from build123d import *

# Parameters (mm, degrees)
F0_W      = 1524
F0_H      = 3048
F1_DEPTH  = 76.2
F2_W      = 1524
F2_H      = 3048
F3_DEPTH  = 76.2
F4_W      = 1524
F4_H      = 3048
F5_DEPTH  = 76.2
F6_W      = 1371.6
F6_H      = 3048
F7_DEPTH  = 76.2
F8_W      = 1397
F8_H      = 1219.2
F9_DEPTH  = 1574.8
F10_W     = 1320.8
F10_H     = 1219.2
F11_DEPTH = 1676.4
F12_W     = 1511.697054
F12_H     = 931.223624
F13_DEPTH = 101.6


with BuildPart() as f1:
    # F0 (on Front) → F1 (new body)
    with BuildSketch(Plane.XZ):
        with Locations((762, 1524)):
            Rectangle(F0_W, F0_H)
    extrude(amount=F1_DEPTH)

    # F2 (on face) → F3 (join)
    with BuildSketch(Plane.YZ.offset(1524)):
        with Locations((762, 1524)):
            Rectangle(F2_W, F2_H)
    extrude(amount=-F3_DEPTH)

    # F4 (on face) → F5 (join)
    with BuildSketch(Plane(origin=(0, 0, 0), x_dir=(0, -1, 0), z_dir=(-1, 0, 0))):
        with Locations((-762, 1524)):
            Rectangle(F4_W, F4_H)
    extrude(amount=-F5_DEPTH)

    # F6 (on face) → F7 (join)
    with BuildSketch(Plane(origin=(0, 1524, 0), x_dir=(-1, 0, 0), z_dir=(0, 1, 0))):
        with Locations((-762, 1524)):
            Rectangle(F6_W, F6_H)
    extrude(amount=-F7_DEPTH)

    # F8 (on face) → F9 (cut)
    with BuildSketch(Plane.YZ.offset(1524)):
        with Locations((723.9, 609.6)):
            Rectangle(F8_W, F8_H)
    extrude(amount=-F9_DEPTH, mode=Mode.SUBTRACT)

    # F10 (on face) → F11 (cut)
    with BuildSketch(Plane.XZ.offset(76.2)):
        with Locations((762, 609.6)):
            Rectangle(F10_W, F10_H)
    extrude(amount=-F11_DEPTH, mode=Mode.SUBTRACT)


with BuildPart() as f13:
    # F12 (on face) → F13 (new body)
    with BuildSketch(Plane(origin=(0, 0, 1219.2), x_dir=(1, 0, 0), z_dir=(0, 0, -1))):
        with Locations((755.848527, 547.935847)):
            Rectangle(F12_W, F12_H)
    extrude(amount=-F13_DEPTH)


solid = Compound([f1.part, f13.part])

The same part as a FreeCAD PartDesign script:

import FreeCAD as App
import Part
import Sketcher
Q = App.Units.Quantity


def add_polygon(sketch, points):
    """Adds a closed chain of lines whose ends are joined by coincident constraints."""
    first, n = sketch.GeometryCount, len(points)
    for a, b in zip(points, points[1:] + points[:1]):
        sketch.addGeometry(Part.LineSegment(App.Vector(*a, 0), App.Vector(*b, 0)), False)
    for i in range(n):
        sketch.addConstraint(Sketcher.Constraint("Coincident", first + i, 2, first + (i + 1) % n, 1))

doc = App.newDocument("Part")
body = doc.addObject("PartDesign::Body", "Body")

# Sketch on XZ plane
sketch1 = doc.addObject("Sketcher::SketchObject", "Sketch")
body.addObject(sketch1)
sketch1.AttachmentSupport = (doc.XZ_Plane, [""])
sketch1.MapMode = "FlatFace"
add_polygon(sketch1, [(0, 3048), (0, 0), (1524, 0), (1524, 3048)])  # lines 0-3
sketch1.addConstraint([
    Sketcher.Constraint("Vertical", 0),
    Sketcher.Constraint("Horizontal", 1),
    Sketcher.Constraint("Vertical", 2),
    Sketcher.Constraint("Horizontal", 3),
    Sketcher.Constraint("Coincident", 0, 2, -1, 1),
    Sketcher.Constraint("DistanceX", 1, 1, 1, 2, Q("60 in")),
    Sketcher.Constraint("DistanceY", 0, 2, 0, 1, Q("120 in")),
])
pad1 = doc.addObject("PartDesign::Pad", "Pad")
body.addObject(pad1)
pad1.Profile = sketch1
pad1.Length = Q("3 in")

# Sketch on YZ plane
sketch2 = doc.addObject("Sketcher::SketchObject", "Sketch001")
body.addObject(sketch2)
sketch2.AttachmentSupport = (doc.YZ_Plane, [""])
sketch2.MapMode = "FlatFace"
sketch2.AttachmentOffset = App.Placement(App.Vector(0, 0, 60 * 25.4), App.Rotation())
add_polygon(sketch2, [(0, 3048), (0, 0), (1524, 0), (1524, 3048)])  # lines 0-3
sketch2.addConstraint([
    Sketcher.Constraint("Vertical", 0),
    Sketcher.Constraint("Horizontal", 1),
    Sketcher.Constraint("Vertical", 2),
    Sketcher.Constraint("Horizontal", 3),
    Sketcher.Constraint("Coincident", 0, 2, -1, 1),
    Sketcher.Constraint("DistanceX", 1, 1, 1, 2, Q("60 in")),
    Sketcher.Constraint("DistanceY", 0, 2, 0, 1, Q("120 in")),
])
pad2 = doc.addObject("PartDesign::Pad", "Pad001")
body.addObject(pad2)
pad2.Profile = sketch2
pad2.Length = Q("3 in")
pad2.Reversed = True

# Sketch on YZ plane
sketch3 = doc.addObject("Sketcher::SketchObject", "Sketch002")
body.addObject(sketch3)
sketch3.AttachmentSupport = (doc.YZ_Plane, [""])
sketch3.MapMode = "FlatFace"
add_polygon(sketch3, [(1524, 3048), (1524, 0), (0, 0), (0, 3048)])  # lines 0-3
sketch3.addConstraint([
    Sketcher.Constraint("Vertical", 0),
    Sketcher.Constraint("Horizontal", 1),
    Sketcher.Constraint("Vertical", 2),
    Sketcher.Constraint("Horizontal", 3),
    Sketcher.Constraint("Coincident", 1, 2, -1, 1),
    Sketcher.Constraint("DistanceX", 1, 2, 1, 1, Q("60 in")),
    Sketcher.Constraint("DistanceY", 0, 2, 0, 1, Q("120 in")),
])
pad3 = doc.addObject("PartDesign::Pad", "Pad002")
body.addObject(pad3)
pad3.Profile = sketch3
pad3.Length = Q("3 in")

# Sketch on XZ plane
sketch4 = doc.addObject("Sketcher::SketchObject", "Sketch003")
body.addObject(sketch4)
sketch4.AttachmentSupport = (doc.XZ_Plane, [""])
sketch4.MapMode = "FlatFace"
sketch4.AttachmentOffset = App.Placement(App.Vector(0, 0, -60 * 25.4), App.Rotation())
add_polygon(sketch4, [(1447.8, 3048), (1447.8, 0), (76.2, 0), (76.2, 3048)])  # lines 0-3
sketch4.addConstraint([
    Sketcher.Constraint("Vertical", 0),
    Sketcher.Constraint("Horizontal", 1),
    Sketcher.Constraint("Vertical", 2),
    Sketcher.Constraint("Horizontal", 3),
    Sketcher.Constraint("PointOnObject", 0, 2, -1),
    Sketcher.Constraint("DistanceX", 1, 2, 1, 1, Q("54 in")),
    Sketcher.Constraint("DistanceY", 0, 2, 0, 1, Q("120 in")),
    Sketcher.Constraint("DistanceX", -1, 1, 0, 2, Q("57 in")),
])
pad4 = doc.addObject("PartDesign::Pad", "Pad003")
body.addObject(pad4)
pad4.Profile = sketch4
pad4.Length = Q("3 in")

# Sketch on YZ plane
sketch5 = doc.addObject("Sketcher::SketchObject", "Sketch004")
body.addObject(sketch5)
sketch5.AttachmentSupport = (doc.YZ_Plane, [""])
sketch5.MapMode = "FlatFace"
sketch5.AttachmentOffset = App.Placement(App.Vector(0, 0, 60 * 25.4), App.Rotation())
add_polygon(sketch5, [(25.4, 1219.2), (25.4, 0), (1422.4, 0), (1422.4, 1219.2)])  # lines 0-3
sketch5.addConstraint([
    Sketcher.Constraint("Vertical", 0),
    Sketcher.Constraint("Horizontal", 1),
    Sketcher.Constraint("Vertical", 2),
    Sketcher.Constraint("Horizontal", 3),
    Sketcher.Constraint("PointOnObject", 0, 2, -1),
    Sketcher.Constraint("DistanceX", 1, 1, 1, 2, Q("55 in")),
    Sketcher.Constraint("DistanceY", 0, 2, 0, 1, Q("48 in")),
    Sketcher.Constraint("DistanceX", -1, 1, 0, 2, Q("1 in")),
])
pocket1 = doc.addObject("PartDesign::Pocket", "Pocket")
body.addObject(pocket1)
pocket1.Profile = sketch5
pocket1.Length = Q("62 in")

# Sketch on XZ plane
sketch6 = doc.addObject("Sketcher::SketchObject", "Sketch005")
body.addObject(sketch6)
sketch6.AttachmentSupport = (doc.XZ_Plane, [""])
sketch6.MapMode = "FlatFace"
sketch6.AttachmentOffset = App.Placement(App.Vector(0, 0, 3 * 25.4), App.Rotation())
add_polygon(sketch6, [(101.6, 1219.2), (101.6, 0), (1422.4, 0), (1422.4, 1219.2)])  # lines 0-3
sketch6.addConstraint([
    Sketcher.Constraint("Vertical", 0),
    Sketcher.Constraint("Horizontal", 1),
    Sketcher.Constraint("Vertical", 2),
    Sketcher.Constraint("Horizontal", 3),
    Sketcher.Constraint("PointOnObject", 0, 2, -1),
    Sketcher.Constraint("DistanceX", 1, 1, 1, 2, Q("52 in")),
    Sketcher.Constraint("DistanceY", 0, 2, 0, 1, Q("48 in")),
    Sketcher.Constraint("DistanceX", -1, 1, 0, 2, Q("4 in")),
])
pocket2 = doc.addObject("PartDesign::Pocket", "Pocket001")
body.addObject(pocket2)
pocket2.Profile = sketch6
pocket2.Length = Q("66 in")
body2 = doc.addObject("PartDesign::Body", "Body001")

# Sketch on XY plane
sketch7 = doc.addObject("Sketcher::SketchObject", "Sketch006")
body2.addObject(sketch7)
sketch7.AttachmentSupport = (doc.getObject("XY_Plane001"), [""])
sketch7.MapMode = "FlatFace"
sketch7.AttachmentOffset = App.Placement(App.Vector(0, 0, 48 * 25.4), App.Rotation())
add_polygon(sketch7, [(0, -1013.547659), (0, -82.324035), (1511.697054, -82.324035), (1511.697054, -1013.547659)])  # lines 0-3
sketch7.addConstraint([
    Sketcher.Constraint("Vertical", 0),
    Sketcher.Constraint("Horizontal", 1),
    Sketcher.Constraint("Vertical", 2),
    Sketcher.Constraint("Horizontal", 3),
    Sketcher.Constraint("PointOnObject", 0, 2, -2),
    Sketcher.Constraint("DistanceX", 1, 1, 1, 2, 1511.697054),
    Sketcher.Constraint("DistanceY", 0, 1, 0, 2, 931.223624),
    Sketcher.Constraint("DistanceY", 2, 2, -1, 1, 1013.547659),
])
pad5 = doc.addObject("PartDesign::Pad", "Pad004")
body2.addObject(pad5)
pad5.Profile = sketch7
pad5.Length = Q("4 in")

doc.recompute()
